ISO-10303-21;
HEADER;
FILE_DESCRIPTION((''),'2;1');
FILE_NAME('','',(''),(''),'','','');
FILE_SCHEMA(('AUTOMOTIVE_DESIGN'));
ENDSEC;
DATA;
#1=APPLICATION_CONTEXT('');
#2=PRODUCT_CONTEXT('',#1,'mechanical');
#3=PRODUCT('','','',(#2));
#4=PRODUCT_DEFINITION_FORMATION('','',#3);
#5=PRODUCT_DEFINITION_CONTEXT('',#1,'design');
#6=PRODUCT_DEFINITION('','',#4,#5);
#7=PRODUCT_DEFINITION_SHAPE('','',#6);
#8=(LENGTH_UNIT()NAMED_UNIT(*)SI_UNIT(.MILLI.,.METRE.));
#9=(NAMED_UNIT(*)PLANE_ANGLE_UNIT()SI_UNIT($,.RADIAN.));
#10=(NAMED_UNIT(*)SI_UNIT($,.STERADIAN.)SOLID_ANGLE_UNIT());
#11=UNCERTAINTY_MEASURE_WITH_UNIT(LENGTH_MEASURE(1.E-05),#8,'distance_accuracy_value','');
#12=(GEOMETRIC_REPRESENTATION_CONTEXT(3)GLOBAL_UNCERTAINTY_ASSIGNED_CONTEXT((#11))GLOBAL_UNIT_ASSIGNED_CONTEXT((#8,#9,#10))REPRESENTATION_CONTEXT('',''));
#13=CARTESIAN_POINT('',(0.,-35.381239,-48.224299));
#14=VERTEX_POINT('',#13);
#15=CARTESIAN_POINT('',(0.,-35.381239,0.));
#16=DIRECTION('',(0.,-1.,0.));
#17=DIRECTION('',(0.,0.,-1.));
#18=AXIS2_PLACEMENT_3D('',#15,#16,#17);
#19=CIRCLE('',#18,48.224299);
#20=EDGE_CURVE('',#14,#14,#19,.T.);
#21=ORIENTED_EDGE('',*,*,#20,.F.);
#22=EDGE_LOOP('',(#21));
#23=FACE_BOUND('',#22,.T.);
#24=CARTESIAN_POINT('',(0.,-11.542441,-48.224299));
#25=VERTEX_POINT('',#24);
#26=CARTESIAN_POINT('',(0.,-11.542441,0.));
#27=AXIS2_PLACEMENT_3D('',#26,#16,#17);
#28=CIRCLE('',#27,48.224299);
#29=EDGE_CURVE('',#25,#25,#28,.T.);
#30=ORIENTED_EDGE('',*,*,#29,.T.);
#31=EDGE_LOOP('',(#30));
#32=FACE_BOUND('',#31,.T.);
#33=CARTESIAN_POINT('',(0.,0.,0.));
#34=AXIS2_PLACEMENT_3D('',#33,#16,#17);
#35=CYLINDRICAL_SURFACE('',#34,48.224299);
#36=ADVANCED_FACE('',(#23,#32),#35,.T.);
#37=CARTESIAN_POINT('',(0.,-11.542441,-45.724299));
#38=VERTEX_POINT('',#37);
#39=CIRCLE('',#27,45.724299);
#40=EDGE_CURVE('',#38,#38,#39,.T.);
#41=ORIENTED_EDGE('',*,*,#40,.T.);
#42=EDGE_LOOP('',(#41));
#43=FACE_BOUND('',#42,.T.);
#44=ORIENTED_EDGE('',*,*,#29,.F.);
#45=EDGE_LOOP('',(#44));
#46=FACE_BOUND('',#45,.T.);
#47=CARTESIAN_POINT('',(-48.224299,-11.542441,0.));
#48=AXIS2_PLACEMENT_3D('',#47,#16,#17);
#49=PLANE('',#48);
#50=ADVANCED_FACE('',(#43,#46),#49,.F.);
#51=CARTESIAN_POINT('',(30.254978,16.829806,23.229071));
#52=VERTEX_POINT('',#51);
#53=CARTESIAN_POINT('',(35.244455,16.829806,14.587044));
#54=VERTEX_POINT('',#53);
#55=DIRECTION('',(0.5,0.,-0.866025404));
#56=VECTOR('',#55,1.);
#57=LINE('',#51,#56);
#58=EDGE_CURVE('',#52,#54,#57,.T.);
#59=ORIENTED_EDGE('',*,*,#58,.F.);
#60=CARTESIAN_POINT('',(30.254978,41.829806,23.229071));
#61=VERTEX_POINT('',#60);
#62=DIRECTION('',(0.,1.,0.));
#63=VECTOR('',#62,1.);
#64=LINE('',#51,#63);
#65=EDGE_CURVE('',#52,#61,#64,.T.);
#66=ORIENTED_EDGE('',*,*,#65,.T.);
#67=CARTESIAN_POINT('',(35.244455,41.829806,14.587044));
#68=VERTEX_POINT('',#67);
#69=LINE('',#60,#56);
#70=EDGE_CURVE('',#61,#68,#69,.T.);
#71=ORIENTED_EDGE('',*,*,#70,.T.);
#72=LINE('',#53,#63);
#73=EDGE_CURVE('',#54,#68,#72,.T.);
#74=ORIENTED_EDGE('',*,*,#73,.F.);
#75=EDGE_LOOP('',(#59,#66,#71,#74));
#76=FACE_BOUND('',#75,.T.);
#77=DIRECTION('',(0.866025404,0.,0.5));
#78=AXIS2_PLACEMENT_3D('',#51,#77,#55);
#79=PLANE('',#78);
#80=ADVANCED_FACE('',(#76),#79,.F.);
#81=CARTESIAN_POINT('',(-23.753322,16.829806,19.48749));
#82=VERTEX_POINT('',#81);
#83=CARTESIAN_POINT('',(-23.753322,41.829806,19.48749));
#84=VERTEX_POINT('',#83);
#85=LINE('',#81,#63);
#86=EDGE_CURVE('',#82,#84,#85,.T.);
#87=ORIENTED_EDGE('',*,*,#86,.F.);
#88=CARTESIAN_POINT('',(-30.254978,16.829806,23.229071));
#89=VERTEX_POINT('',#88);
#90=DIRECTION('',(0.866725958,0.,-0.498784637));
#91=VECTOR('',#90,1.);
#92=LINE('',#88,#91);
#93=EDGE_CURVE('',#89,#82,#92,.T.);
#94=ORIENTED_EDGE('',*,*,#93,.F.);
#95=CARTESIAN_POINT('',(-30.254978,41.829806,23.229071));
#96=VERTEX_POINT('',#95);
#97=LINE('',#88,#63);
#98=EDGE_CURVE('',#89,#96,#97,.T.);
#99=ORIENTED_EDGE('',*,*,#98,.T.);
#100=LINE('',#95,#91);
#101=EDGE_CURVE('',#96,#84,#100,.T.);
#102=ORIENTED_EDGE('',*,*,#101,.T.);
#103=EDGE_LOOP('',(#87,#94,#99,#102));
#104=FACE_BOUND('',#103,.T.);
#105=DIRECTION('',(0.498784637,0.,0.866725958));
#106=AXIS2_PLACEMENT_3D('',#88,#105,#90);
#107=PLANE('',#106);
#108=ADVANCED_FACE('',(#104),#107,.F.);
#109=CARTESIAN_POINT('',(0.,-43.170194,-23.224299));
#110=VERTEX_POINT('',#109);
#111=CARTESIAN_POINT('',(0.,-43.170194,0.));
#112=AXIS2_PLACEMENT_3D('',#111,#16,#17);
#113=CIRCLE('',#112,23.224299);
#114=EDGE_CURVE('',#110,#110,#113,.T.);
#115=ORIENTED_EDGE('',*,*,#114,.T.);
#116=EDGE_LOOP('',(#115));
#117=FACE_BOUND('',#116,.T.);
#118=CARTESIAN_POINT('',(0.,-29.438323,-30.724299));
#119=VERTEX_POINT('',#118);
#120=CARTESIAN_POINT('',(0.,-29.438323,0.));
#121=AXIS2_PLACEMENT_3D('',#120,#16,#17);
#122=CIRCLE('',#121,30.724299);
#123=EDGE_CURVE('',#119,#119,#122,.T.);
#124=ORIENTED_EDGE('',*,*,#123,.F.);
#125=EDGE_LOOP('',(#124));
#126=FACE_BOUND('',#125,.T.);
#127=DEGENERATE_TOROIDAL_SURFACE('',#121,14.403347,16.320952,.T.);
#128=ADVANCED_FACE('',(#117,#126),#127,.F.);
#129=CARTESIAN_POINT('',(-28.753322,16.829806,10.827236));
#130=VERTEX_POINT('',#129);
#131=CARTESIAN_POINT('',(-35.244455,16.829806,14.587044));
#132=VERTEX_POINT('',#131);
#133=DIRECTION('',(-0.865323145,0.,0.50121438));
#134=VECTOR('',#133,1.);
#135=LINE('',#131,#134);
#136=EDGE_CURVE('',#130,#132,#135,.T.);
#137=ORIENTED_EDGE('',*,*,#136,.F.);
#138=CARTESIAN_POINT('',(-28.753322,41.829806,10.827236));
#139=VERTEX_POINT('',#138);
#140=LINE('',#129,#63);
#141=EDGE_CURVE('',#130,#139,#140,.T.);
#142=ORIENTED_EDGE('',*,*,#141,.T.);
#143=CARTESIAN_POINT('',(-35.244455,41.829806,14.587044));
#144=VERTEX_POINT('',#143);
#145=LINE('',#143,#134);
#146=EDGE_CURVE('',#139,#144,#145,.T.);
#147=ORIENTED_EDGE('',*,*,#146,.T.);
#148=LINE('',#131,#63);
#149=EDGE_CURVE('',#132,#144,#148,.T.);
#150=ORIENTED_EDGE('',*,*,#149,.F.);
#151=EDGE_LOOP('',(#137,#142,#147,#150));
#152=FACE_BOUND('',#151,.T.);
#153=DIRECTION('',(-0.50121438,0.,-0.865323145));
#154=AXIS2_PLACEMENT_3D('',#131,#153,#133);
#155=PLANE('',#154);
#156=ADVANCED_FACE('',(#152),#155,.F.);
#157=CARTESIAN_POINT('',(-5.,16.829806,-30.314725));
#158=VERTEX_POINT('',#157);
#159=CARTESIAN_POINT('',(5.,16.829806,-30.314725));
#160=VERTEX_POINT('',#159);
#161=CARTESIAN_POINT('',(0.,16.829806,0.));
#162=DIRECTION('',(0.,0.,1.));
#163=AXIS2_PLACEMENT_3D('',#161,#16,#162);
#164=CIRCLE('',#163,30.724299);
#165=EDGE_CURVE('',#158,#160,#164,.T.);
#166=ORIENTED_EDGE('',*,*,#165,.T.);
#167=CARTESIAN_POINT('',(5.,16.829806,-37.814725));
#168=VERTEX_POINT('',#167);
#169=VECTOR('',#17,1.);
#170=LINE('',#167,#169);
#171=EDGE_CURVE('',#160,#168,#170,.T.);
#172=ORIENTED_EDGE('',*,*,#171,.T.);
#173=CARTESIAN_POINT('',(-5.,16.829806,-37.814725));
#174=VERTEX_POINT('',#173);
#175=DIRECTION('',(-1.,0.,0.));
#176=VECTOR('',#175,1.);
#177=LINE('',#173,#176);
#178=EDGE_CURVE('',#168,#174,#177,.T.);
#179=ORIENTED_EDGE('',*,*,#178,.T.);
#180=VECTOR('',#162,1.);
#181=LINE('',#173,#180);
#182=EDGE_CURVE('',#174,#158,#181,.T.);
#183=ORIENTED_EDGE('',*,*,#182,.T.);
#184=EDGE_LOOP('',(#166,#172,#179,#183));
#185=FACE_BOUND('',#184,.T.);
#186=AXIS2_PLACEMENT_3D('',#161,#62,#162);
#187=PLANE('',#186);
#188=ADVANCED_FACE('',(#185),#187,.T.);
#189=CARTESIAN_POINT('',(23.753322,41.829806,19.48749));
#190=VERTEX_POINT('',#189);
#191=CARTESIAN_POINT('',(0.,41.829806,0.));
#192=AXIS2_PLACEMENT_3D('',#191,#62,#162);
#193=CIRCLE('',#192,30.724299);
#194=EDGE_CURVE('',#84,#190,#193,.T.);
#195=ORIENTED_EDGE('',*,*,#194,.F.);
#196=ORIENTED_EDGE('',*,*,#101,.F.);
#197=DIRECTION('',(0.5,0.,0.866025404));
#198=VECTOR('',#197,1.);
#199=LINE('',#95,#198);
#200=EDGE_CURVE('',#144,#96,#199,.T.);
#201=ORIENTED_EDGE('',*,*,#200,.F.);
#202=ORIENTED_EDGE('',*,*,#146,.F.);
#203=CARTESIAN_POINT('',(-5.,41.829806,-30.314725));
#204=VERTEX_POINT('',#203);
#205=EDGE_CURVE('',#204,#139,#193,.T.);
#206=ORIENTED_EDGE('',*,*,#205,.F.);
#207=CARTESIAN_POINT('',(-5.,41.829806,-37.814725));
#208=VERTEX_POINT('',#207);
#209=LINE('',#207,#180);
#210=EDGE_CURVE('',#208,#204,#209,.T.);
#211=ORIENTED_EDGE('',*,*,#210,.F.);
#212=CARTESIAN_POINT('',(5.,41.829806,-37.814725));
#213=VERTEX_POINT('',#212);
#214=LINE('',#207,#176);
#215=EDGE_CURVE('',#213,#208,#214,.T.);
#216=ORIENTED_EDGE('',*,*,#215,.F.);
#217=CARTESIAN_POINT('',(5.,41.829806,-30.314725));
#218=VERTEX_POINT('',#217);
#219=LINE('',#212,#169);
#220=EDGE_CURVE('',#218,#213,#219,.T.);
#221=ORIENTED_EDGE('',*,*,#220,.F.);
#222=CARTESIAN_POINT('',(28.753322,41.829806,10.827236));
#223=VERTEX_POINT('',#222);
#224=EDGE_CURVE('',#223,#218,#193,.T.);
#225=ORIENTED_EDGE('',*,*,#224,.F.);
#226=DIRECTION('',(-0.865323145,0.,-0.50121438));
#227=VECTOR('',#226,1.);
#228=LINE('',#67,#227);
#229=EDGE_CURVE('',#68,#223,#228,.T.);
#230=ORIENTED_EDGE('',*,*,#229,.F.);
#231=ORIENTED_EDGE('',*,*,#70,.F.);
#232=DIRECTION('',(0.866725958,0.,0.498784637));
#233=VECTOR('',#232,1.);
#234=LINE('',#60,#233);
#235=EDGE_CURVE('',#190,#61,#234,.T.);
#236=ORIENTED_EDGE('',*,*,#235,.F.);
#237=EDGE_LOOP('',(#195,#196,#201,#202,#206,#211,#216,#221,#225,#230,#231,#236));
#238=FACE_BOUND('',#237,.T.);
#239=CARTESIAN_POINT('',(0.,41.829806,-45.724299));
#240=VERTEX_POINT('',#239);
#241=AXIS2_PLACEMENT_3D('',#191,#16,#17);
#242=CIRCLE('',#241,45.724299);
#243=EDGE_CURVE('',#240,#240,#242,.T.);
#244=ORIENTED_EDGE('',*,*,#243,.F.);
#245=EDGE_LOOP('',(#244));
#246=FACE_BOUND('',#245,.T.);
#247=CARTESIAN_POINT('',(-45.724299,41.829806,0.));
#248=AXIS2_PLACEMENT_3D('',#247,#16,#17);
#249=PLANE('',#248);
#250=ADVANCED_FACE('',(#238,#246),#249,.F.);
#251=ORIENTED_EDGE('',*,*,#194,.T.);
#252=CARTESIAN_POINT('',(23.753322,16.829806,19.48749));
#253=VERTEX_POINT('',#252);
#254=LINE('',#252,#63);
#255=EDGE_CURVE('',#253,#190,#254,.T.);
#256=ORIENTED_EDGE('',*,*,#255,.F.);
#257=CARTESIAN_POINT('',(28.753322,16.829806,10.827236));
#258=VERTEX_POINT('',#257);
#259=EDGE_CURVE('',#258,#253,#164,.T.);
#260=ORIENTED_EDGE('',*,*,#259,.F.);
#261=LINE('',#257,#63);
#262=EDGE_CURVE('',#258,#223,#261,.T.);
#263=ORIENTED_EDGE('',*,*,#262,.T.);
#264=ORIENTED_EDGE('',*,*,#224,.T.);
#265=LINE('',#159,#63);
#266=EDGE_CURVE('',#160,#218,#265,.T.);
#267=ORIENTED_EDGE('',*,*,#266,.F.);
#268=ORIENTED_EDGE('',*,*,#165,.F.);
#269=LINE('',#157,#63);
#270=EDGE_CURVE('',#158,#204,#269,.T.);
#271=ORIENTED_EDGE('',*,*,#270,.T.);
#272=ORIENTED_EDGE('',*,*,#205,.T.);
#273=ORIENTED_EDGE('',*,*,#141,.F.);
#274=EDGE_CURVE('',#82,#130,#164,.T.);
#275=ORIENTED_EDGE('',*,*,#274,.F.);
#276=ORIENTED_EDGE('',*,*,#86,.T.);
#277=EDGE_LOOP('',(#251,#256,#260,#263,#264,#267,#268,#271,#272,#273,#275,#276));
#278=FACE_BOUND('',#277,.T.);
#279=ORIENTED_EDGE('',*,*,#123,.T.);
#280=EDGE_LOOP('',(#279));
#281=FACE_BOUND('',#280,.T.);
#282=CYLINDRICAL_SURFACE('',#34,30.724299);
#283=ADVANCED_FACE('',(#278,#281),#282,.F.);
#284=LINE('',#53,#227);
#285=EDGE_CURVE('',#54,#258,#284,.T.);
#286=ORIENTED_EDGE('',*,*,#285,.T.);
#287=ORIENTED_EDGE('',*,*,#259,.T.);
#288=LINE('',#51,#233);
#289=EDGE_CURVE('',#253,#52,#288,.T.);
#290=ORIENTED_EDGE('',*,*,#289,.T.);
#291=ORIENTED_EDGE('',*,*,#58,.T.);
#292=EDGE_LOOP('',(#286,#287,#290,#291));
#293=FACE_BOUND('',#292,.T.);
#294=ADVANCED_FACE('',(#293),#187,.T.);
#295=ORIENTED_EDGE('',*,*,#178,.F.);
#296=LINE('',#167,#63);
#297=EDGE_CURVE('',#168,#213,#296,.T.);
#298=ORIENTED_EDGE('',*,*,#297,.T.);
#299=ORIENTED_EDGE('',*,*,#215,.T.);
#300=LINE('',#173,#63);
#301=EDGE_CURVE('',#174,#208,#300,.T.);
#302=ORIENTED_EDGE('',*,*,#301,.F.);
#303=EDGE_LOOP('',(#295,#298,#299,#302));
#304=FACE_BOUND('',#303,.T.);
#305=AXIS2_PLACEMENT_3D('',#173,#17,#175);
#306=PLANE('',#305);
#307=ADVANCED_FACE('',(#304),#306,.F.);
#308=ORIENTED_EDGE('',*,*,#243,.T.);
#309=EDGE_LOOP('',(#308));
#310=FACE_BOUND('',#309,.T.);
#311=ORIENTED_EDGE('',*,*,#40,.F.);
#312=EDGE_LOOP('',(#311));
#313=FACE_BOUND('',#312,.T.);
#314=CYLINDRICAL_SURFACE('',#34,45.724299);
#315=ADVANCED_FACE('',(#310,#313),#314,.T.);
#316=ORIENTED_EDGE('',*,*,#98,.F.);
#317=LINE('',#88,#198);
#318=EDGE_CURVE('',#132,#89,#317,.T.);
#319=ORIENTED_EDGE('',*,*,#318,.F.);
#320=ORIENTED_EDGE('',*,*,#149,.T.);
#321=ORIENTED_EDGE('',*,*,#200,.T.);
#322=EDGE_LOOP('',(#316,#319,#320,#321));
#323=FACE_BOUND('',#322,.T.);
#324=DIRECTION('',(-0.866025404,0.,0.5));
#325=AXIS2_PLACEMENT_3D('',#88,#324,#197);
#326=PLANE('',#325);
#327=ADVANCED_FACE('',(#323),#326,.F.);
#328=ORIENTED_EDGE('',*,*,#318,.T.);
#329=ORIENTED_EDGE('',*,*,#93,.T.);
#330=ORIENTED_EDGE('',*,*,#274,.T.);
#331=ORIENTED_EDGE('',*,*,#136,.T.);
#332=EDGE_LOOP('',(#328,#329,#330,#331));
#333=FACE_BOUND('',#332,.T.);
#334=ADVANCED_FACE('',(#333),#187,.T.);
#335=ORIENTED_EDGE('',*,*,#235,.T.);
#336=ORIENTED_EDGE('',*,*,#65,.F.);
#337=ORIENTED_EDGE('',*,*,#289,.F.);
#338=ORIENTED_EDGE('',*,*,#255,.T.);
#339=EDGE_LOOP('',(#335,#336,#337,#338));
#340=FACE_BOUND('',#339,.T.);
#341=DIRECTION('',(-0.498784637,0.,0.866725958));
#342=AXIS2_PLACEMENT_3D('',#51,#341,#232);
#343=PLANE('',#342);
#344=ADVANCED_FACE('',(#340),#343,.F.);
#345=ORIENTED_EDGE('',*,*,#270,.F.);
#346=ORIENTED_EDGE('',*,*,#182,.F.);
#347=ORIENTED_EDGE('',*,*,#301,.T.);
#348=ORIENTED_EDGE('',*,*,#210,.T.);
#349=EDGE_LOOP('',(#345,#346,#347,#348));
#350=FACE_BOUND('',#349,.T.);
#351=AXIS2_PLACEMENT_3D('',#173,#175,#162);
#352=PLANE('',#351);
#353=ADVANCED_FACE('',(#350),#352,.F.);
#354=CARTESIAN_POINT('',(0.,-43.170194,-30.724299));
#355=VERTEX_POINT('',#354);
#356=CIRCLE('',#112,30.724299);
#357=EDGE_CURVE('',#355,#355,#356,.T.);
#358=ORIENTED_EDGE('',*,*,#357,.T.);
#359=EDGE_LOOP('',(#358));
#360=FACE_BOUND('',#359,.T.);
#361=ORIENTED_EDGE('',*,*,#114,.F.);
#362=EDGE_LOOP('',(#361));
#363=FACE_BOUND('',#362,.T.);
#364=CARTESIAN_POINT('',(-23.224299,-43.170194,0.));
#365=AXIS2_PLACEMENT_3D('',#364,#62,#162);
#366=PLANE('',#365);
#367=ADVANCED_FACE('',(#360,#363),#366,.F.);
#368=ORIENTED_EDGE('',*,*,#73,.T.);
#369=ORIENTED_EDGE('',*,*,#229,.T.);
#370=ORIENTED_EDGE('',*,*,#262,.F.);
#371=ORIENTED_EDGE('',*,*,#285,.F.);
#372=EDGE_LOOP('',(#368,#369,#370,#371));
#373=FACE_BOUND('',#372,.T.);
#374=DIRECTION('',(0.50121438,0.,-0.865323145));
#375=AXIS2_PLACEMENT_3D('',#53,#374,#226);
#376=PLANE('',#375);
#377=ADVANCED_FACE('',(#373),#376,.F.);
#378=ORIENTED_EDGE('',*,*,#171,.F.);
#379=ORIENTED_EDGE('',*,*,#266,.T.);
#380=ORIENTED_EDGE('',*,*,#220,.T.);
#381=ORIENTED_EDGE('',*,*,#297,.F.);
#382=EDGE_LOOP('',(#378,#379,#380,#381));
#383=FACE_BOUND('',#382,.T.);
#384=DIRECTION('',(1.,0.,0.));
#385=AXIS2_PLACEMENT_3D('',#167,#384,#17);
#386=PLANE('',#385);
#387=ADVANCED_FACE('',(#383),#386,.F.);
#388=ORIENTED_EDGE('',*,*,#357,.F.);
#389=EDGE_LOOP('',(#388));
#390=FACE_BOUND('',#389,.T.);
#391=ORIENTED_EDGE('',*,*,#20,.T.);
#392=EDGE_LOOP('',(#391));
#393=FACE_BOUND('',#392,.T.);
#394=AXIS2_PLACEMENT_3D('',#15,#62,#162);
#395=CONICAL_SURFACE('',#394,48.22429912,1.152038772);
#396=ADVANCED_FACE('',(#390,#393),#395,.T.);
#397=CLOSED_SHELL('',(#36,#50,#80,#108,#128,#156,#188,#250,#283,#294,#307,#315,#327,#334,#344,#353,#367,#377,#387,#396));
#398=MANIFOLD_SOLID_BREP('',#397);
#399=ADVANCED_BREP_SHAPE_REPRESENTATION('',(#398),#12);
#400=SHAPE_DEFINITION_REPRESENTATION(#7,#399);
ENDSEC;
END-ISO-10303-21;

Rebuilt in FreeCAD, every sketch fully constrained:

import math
import FreeCAD as App
import Part
import Sketcher

V = App.Vector
Q = App.Units.Quantity

doc = App.newDocument("Part")
params = doc.addObject("Spreadsheet::Sheet", "Params")
for row, (alias, value) in enumerate([
    ("sketch1_height", "25 mm"),
    ("sketch1_width", "7.5 mm"),
    ("sketch1_width2", "2.5 mm"),
    ("revolution_angle", "360 deg"),
    ("pad1_length", "25 mm"),
    ("sketch3_width", "10 mm"),
    ("sketch3_height", "7.5 mm"),
    ("pocket1_length", "25 mm"),
], start=1):
    params.set(f"A{row}", alias)
    params.set(f"B{row}", "=" + value)
    params.setAlias(f"B{row}", alias)

body = doc.addObject("PartDesign::Body", "Body")

# Sketch on XY plane
sketch1 = body.newObject("Sketcher::SketchObject", "Sketch")
sketch1.AttachmentSupport = (doc.getObject("XY_Plane"), [""])
sketch1.MapMode = "FlatFace"
sketch1.addGeometry([
    Part.LineSegment(V(-30.7, -43.2, 0), V(-23.2, -43.2, 0)),  # 0
    Part.ArcOfCircle(Part.Circle(V(-14.4, -29.4, 0), V(0, 0, 1), 16.3), math.radians(-180), math.radians(-123)),  # 1
    Part.LineSegment(V(-30.7, -29.4, 0), V(-30.7, 16.8, 0)),  # 2
    Part.LineSegment(V(-30.7, 16.8, 0), V(-38.2, 16.8, 0)),  # 3
    Part.LineSegment(V(-38.2, 16.8, 0), V(-38.2, 41.8, 0)),  # 4
    Part.LineSegment(V(-38.2, 41.8, 0), V(-45.7, 41.8, 0)),  # 5
    Part.LineSegment(V(-45.7, 41.8, 0), V(-45.7, -11.5, 0)),  # 6
    Part.LineSegment(V(-45.7, -11.5, 0), V(-48.2, -11.5, 0)),  # 7
    Part.LineSegment(V(-48.2, -11.5, 0), V(-48.2, -35.4, 0)),  # 8
    Part.LineSegment(V(-48.2, -35.4, 0), V(-30.7, -43.2, 0)),  # 9
], False)
sketch1.addConstraint([
    Sketcher.Constraint("Coincident", 0, 2, 1, 2),
    Sketcher.Constraint("Tangent", 1, 1, 2, 1),
    Sketcher.Constraint("Coincident", 2, 2, 3, 1),
    Sketcher.Constraint("Coincident", 3, 2, 4, 1),
    Sketcher.Constraint("Coincident", 4, 2, 5, 1),
    Sketcher.Constraint("Coincident", 5, 2, 6, 1),
    Sketcher.Constraint("Coincident", 6, 2, 7, 1),
    Sketcher.Constraint("Coincident", 7, 2, 8, 1),
    Sketcher.Constraint("Coincident", 8, 2, 9, 1),
    Sketcher.Constraint("Coincident", 9, 2, 0, 1),
    Sketcher.Constraint("Horizontal", 0),
    Sketcher.Constraint("Vertical", 2),
    Sketcher.Constraint("Horizontal", 3),
    Sketcher.Constraint("Vertical", 4),
    Sketcher.Constraint("Horizontal", 5),
    Sketcher.Constraint("Vertical", 6),
    Sketcher.Constraint("Horizontal", 7),
    Sketcher.Constraint("Vertical", 8),
    Sketcher.Constraint("Vertical", 2, 2, 9, 2),
    Sketcher.Constraint("Equal", 0, 3),
    Sketcher.Constraint("Equal", 3, 5),
    Sketcher.Constraint("DistanceY", 4, 1, 4, 2, Q("25 mm")),
    Sketcher.Constraint("DistanceX", 0, 1, 0, 2, Q("7.5 mm")),
    Sketcher.Constraint("DistanceX", 7, 2, 7, 1, Q("2.5 mm")),
    Sketcher.Constraint("DistanceY", 0, 2, 2, 2, Q("60 mm")),
    Sketcher.Constraint("Radius", 1, Q("16.320952 mm")),
    Sketcher.Constraint("Distance", 9, Q("19.155099 mm")),
    Sketcher.Constraint("DistanceX", 0, 2, -1, 1, Q("23.224299 mm")),
    Sketcher.Constraint("DistanceY", 6, 2, 6, 1, Q("53.372247 mm")),
    Sketcher.Constraint("DistanceY", 6, 2, -1, 1, Q("11.542441 mm")),
])
sketch1.setExpression("Constraints[21]", "Params.sketch1_height")
sketch1.setExpression("Constraints[22]", "Params.sketch1_width")
sketch1.setExpression("Constraints[23]", "Params.sketch1_width2")
revolution = body.newObject("PartDesign::Revolution", "Revolution")
revolution.Profile = sketch1
revolution.ReferenceAxis = (sketch1, ["V_Axis"])
revolution.setExpression("Angle", "Params.revolution_angle")

# Sketch on XZ plane
sketch2 = body.newObject("Sketcher::SketchObject", "Sketch001")
sketch2.AttachmentSupport = (doc.getObject("XZ_Plane"), [""])
sketch2.MapMode = "FlatFace"
sketch2.AttachmentOffset = App.Placement(V(0, 0, -16.829806), App.Rotation())
sketch2.addGeometry([
    Part.Circle(V(0, 0, 0), V(0, 0, 1), 38),
    Part.Circle(V(0, 0, 0), V(0, 0, 1), 31),
], False)
sketch2.addConstraint([
    Sketcher.Constraint("Coincident", 0, 3, -1, 1),
    Sketcher.Constraint("Coincident", 1, 3, -1, 1),
    Sketcher.Constraint("Diameter", 0, Q("76.448598 mm")),
    Sketcher.Constraint("Diameter", 1, Q("61.448598 mm")),
])
pad1 = body.newObject("PartDesign::Pad", "Pad")
pad1.Profile = sketch2
pad1.setExpression("Length", "Params.pad1_length")
pad1.Reversed = True

# Sketch on XZ plane
sketch3 = body.newObject("Sketcher::SketchObject", "Sketch002")
sketch3.AttachmentSupport = (doc.getObject("XZ_Plane"), [""])
sketch3.MapMode = "FlatFace"
sketch3.AttachmentOffset = App.Placement(V(0, 0, -16.829806), App.Rotation())
sketch3.addGeometry([
    Part.LineSegment(V(-5, -38, 0), V(-5, -30, 0)),  # 0
    Part.ArcOfCircle(Part.Circle(V(0, 0, 0), V(0, 0, 1), 31), math.radians(-99.37), math.radians(-80.63)),  # 1
    Part.LineSegment(V(5, -30, 0), V(5, -38, 0)),  # 2
    Part.LineSegment(V(5, -38, 0), V(-5, -38, 0)),  # 3
    Part.LineSegment(V(24, 19, 0), V(30, 23, 0)),  # 4
    Part.LineSegment(V(30, 23, 0), V(35, 15, 0)),  # 5
    Part.LineSegment(V(35, 15, 0), V(29, 11, 0)),  # 6
    Part.ArcOfCircle(Part.Circle(V(0, 0, 0), V(0, 0, 1), 31), math.radians(20.63), math.radians(39.37)),  # 7
    Part.LineSegment(V(-29, 11, 0), V(-35, 15, 0)),  # 8
    Part.LineSegment(V(-35, 15, 0), V(-30, 23, 0)),  # 9
    Part.LineSegment(V(-30, 23, 0), V(-24, 19, 0)),  # 10
    Part.ArcOfCircle(Part.Circle(V(0, 0, 0), V(0, 0, 1), 31), math.radians(140.63), math.radians(159.37)),  # 11
], False)
sketch3.addConstraint([
    Sketcher.Constraint("Coincident", 0, 2, 1, 1),
    Sketcher.Constraint("Coincident", 1, 2, 2, 1),
    Sketcher.Constraint("Coincident", 2, 2, 3, 1),
    Sketcher.Constraint("Coincident", 3, 2, 0, 1),
    Sketcher.Constraint("Coincident", 4, 2, 5, 1),
    Sketcher.Constraint("Coincident", 5, 2, 6, 1),
    Sketcher.Constraint("Coincident", 6, 2, 7, 1),
    Sketcher.Constraint("Coincident", 7, 2, 4, 1),
    Sketcher.Constraint("Coincident", 8, 2, 9, 1),
    Sketcher.Constraint("Coincident", 9, 2, 10, 1),
    Sketcher.Constraint("Coincident", 10, 2, 11, 1),
    Sketcher.Constraint("Coincident", 11, 2, 8, 1),
    Sketcher.Constraint("Vertical", 0),
    Sketcher.Constraint("Vertical", 2),
    Sketcher.Constraint("Horizontal", 3),
    Sketcher.Constraint("Coincident", 1, 3, -1, 1),
    Sketcher.Constraint("Coincident", 7, 3, -1, 1),
    Sketcher.Constraint("Coincident", 11, 3, -1, 1),
    Sketcher.Constraint("Equal", 1, 7),
    Sketcher.Constraint("Equal", 7, 11),
    Sketcher.Constraint("Symmetric", 5, 2, 8, 2, -2),
    Sketcher.Constraint("Symmetric", 4, 2, 9, 2, -2),
    Sketcher.Constraint("Horizontal", 0, 2, 1, 2),
    Sketcher.Constraint("Horizontal", 7, 2, 10, 2),
    Sketcher.Constraint("Horizontal", 6, 2, 11, 2),
    Sketcher.Constraint("Equal", 4, 6),
    Sketcher.Constraint("DistanceX", 3, 2, 3, 1, Q("10 mm")),
    Sketcher.Constraint("Angle", 5, Q("-60 deg")),
    Sketcher.Constraint("DistanceY", 0, 1, 0, 2, Q("7.5 mm")),
    Sketcher.Constraint("DistanceX", 7, 2, 6, 2, Q("5 mm")),
    Sketcher.Constraint("Radius", 1, Q("30.724299 mm")),
    Sketcher.Constraint("DistanceX", 9, 2, 7, 2, Q("54.0083 mm")),
    Sketcher.Constraint("DistanceY", -1, 1, 4, 2, Q("23.229071 mm")),
    Sketcher.Constraint("DistanceY", 1, 2, 5, 2, Q("44.901769 mm")),
])
sketch3.setExpression("Constraints[26]", "Params.sketch3_width")
sketch3.setExpression("Constraints[28]", "Params.sketch3_height")
pocket1 = body.newObject("PartDesign::Pocket", "Pocket")
pocket1.Profile = sketch3
pocket1.setExpression("Length", "Params.pocket1_length")

doc.recompute()
